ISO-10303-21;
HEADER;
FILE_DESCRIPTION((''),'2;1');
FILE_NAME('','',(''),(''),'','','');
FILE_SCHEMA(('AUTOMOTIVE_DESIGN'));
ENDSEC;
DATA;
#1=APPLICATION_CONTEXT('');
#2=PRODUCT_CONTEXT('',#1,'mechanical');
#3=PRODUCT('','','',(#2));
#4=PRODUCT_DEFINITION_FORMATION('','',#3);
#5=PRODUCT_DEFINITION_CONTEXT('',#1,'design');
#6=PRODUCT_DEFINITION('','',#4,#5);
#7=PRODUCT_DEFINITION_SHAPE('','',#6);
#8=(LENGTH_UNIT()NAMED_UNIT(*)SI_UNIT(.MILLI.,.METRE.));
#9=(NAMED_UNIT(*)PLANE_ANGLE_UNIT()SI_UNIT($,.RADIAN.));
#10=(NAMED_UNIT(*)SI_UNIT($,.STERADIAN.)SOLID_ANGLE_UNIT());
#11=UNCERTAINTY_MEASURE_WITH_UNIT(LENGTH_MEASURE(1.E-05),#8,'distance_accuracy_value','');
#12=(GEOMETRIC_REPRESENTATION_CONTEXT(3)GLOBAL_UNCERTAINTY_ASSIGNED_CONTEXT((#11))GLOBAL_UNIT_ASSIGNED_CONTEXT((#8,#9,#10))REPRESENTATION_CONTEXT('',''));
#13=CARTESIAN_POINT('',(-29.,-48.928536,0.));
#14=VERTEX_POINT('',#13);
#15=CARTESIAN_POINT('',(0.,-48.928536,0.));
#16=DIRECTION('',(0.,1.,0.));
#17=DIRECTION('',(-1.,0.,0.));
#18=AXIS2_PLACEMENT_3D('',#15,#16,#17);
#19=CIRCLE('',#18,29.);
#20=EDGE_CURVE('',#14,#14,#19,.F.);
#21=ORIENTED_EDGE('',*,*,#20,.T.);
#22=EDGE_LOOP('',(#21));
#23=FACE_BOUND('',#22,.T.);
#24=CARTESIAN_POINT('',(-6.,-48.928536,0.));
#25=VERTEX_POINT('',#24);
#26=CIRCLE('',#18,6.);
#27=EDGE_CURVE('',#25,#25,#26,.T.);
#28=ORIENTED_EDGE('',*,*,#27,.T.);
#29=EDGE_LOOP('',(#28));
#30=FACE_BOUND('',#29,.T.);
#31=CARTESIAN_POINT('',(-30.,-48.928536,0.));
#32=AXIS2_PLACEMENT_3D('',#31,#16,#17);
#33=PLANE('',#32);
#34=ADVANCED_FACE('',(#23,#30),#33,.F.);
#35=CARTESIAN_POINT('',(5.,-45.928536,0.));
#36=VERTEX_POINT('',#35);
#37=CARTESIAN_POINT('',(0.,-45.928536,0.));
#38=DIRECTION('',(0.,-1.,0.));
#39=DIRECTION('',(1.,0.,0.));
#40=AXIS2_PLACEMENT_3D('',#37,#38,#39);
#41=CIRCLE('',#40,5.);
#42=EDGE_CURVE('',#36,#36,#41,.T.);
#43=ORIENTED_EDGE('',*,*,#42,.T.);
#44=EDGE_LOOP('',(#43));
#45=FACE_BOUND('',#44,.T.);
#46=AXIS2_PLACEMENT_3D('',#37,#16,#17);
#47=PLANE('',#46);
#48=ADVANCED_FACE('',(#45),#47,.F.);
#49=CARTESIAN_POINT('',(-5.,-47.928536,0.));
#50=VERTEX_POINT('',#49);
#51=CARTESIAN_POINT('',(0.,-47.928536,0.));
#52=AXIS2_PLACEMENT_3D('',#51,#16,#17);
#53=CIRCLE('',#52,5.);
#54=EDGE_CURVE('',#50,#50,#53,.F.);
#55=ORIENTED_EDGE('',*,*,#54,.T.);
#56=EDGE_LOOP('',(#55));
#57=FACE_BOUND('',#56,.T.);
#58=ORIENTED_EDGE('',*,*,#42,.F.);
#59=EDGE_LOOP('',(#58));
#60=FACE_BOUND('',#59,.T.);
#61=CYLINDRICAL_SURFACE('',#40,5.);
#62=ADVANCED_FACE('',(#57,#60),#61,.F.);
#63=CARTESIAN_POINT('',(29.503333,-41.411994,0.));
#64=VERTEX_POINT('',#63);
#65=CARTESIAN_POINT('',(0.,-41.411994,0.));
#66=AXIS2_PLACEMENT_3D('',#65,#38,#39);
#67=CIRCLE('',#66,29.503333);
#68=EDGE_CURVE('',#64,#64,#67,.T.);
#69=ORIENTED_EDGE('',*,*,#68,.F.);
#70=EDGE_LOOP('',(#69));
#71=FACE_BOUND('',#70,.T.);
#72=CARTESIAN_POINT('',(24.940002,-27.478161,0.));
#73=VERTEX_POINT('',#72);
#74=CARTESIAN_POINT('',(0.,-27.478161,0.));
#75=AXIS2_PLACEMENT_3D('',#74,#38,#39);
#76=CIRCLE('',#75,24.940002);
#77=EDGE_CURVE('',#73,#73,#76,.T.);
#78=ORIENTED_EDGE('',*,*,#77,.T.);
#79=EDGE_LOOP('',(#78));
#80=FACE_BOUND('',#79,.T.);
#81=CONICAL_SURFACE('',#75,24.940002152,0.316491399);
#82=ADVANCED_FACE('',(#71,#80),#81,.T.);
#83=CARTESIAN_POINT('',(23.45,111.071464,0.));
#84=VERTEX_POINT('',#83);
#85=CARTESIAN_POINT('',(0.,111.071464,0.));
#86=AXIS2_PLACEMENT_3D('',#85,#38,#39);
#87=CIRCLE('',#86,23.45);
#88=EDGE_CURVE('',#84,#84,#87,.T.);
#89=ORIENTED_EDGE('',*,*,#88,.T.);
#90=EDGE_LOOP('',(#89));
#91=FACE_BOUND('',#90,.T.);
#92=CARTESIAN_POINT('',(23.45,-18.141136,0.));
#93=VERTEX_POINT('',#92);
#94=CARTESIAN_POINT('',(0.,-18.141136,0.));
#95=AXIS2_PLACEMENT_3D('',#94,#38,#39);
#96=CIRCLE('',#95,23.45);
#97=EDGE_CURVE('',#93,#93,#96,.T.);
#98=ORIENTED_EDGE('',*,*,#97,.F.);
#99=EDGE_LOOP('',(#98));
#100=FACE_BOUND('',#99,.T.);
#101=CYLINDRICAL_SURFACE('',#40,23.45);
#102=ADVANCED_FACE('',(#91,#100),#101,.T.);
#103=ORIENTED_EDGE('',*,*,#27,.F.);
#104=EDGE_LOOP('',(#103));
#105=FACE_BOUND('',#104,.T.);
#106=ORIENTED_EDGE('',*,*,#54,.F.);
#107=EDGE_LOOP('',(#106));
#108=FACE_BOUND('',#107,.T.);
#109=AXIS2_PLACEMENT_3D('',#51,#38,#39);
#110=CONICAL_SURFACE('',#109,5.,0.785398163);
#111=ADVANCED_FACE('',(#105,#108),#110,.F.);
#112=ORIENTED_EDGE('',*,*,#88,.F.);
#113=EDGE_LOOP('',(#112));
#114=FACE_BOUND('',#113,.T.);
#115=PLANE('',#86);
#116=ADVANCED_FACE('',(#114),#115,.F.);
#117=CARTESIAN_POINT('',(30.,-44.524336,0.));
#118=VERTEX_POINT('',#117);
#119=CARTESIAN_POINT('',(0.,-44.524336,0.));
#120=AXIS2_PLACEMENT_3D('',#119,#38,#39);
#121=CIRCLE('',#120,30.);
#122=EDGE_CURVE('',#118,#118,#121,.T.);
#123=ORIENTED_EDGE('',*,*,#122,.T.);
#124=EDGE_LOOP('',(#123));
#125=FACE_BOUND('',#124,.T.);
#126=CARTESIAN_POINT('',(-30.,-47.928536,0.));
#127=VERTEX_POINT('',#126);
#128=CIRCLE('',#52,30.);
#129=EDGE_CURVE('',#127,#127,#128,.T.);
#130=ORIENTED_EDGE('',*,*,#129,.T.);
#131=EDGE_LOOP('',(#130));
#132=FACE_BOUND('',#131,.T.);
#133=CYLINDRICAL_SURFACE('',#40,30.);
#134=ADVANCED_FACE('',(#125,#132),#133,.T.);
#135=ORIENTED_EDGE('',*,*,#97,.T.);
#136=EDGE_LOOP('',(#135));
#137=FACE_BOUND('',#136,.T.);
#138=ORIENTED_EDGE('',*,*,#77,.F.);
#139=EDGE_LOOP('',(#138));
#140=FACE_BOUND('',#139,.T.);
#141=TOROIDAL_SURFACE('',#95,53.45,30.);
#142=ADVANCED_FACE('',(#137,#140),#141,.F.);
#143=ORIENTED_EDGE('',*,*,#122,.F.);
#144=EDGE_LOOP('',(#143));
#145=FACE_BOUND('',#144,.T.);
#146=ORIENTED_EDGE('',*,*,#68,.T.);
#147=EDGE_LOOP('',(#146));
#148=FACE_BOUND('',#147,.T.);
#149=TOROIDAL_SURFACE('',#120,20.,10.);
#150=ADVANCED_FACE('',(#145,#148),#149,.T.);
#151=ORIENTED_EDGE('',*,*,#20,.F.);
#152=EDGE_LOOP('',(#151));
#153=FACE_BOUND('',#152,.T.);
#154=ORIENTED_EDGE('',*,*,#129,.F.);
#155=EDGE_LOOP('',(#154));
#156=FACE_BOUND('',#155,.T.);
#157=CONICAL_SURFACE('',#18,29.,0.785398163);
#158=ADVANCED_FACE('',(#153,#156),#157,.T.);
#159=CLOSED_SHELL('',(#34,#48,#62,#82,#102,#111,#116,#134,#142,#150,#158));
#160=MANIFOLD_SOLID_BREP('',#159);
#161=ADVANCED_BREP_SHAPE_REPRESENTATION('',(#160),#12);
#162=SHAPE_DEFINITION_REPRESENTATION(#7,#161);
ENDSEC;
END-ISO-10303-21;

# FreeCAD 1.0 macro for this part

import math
import FreeCAD as App
import Part
import Sketcher
from FreeCAD import Vector
Q = App.Units.Quantity


def edges_at(feature, points):
    """Names of the edges that pass closest to the given points."""
    edges = feature.Shape.Edges
    near = lambda p: min(range(len(edges)), key=lambda i: edges[i].distToShape(Part.Vertex(*p))[0])
    return sorted({f"Edge{near(p) + 1}" for p in points})

doc = App.newDocument("Part")
body = doc.addObject("PartDesign::Body", "Body")

# Sketch on XY plane
sketch1 = body.newObject("Sketcher::SketchObject", "Sketch")
sketch1.AttachmentSupport = (doc.getObject("XY_Plane"), [""])
sketch1.MapMode = "FlatFace"
sketch1.addGeometry([
    Part.LineSegment(Vector(0, 111.1, 0), Vector(-23.4, 111.1, 0)),  # 0
    Part.LineSegment(Vector(-23.4, 111.1, 0), Vector(-23.4, -18.1, 0)),  # 1
    Part.ArcOfCircle(Part.Circle(Vector(-53.4, -18.1, 0), Vector(0, 0, 1), 30), math.radians(-18.13), math.radians(0)),  # 2
    Part.LineSegment(Vector(-24.9, -27.5, 0), Vector(-29.5, -41.4, 0)),  # 3
    Part.ArcOfCircle(Part.Circle(Vector(-20, -44.5, 0), Vector(0, 0, 1), 10), math.radians(161.87), math.radians(180)),  # 4
    Part.LineSegment(Vector(-30, -44.5, 0), Vector(-30, -48.9, 0)),  # 5
    Part.LineSegment(Vector(-30, -48.9, 0), Vector(-5, -48.9, 0)),  # 6
    Part.LineSegment(Vector(-5, -48.9, 0), Vector(-5, -45.9, 0)),  # 7
    Part.LineSegment(Vector(-5, -45.9, 0), Vector(0, -45.9, 0)),  # 8
    Part.LineSegment(Vector(0, -45.9, 0), Vector(0, 111.1, 0)),  # 9
], False)
sketch1.addConstraint([
    Sketcher.Constraint("Coincident", 0, 2, 1, 1),
    Sketcher.Constraint("Tangent", 1, 2, 2, 2),
    Sketcher.Constraint("Tangent", 2, 1, 3, 1),
    Sketcher.Constraint("Tangent", 3, 2, 4, 1),
    Sketcher.Constraint("Tangent", 4, 2, 5, 1),
    Sketcher.Constraint("Coincident", 5, 2, 6, 1),
    Sketcher.Constraint("Coincident", 6, 2, 7, 1),
    Sketcher.Constraint("Coincident", 7, 2, 8, 1),
    Sketcher.Constraint("Coincident", 8, 2, 9, 1),
    Sketcher.Constraint("Coincident", 9, 2, 0, 1),
    Sketcher.Constraint("Horizontal", 0),
    Sketcher.Constraint("Vertical", 1),
    Sketcher.Constraint("Vertical", 5),
    Sketcher.Constraint("Horizontal", 6),
    Sketcher.Constraint("Vertical", 7),
    Sketcher.Constraint("Horizontal", 8),
    Sketcher.Constraint("Vertical", 9),
    Sketcher.Constraint("PointOnObject", 8, 2, -2),
    Sketcher.Constraint("Radius", 2, Q("30 mm")),
    Sketcher.Constraint("Radius", 4, Q("10 mm")),
    Sketcher.Constraint("DistanceX", 6, 1, 6, 2, Q("25 mm")),
    Sketcher.Constraint("DistanceX", 8, 1, 8, 2, Q("5 mm")),
    Sketcher.Constraint("DistanceY", 7, 1, 7, 2, Q("3 mm")),
    Sketcher.Constraint("DistanceY", 9, 1, 9, 2, Q("157 mm")),
    Sketcher.Constraint("DistanceX", 0, 2, 0, 1, Q("23.45 mm")),
    Sketcher.Constraint("DistanceY", 1, 2, 1, 1, Q("129.212601 mm")),
    Sketcher.Constraint("DistanceY", 5, 2, 5, 1, Q("4.4042 mm")),
    Sketcher.Constraint("DistanceY", 2, 1, -1, 1, Q("27.478161 mm")),
])
revolution = body.newObject("PartDesign::Revolution", "Revolution")
revolution.Profile = sketch1
revolution.ReferenceAxis = (sketch1, ["V_Axis"])
revolution.Angle = 360
doc.recompute()

chamfer = body.newObject("PartDesign::Chamfer", "Chamfer")
chamfer.Base = (revolution, edges_at(revolution, [(-5, -48.929, 0), (-30, -48.929, 0)]))
chamfer.Size = 1

doc.recompute()
